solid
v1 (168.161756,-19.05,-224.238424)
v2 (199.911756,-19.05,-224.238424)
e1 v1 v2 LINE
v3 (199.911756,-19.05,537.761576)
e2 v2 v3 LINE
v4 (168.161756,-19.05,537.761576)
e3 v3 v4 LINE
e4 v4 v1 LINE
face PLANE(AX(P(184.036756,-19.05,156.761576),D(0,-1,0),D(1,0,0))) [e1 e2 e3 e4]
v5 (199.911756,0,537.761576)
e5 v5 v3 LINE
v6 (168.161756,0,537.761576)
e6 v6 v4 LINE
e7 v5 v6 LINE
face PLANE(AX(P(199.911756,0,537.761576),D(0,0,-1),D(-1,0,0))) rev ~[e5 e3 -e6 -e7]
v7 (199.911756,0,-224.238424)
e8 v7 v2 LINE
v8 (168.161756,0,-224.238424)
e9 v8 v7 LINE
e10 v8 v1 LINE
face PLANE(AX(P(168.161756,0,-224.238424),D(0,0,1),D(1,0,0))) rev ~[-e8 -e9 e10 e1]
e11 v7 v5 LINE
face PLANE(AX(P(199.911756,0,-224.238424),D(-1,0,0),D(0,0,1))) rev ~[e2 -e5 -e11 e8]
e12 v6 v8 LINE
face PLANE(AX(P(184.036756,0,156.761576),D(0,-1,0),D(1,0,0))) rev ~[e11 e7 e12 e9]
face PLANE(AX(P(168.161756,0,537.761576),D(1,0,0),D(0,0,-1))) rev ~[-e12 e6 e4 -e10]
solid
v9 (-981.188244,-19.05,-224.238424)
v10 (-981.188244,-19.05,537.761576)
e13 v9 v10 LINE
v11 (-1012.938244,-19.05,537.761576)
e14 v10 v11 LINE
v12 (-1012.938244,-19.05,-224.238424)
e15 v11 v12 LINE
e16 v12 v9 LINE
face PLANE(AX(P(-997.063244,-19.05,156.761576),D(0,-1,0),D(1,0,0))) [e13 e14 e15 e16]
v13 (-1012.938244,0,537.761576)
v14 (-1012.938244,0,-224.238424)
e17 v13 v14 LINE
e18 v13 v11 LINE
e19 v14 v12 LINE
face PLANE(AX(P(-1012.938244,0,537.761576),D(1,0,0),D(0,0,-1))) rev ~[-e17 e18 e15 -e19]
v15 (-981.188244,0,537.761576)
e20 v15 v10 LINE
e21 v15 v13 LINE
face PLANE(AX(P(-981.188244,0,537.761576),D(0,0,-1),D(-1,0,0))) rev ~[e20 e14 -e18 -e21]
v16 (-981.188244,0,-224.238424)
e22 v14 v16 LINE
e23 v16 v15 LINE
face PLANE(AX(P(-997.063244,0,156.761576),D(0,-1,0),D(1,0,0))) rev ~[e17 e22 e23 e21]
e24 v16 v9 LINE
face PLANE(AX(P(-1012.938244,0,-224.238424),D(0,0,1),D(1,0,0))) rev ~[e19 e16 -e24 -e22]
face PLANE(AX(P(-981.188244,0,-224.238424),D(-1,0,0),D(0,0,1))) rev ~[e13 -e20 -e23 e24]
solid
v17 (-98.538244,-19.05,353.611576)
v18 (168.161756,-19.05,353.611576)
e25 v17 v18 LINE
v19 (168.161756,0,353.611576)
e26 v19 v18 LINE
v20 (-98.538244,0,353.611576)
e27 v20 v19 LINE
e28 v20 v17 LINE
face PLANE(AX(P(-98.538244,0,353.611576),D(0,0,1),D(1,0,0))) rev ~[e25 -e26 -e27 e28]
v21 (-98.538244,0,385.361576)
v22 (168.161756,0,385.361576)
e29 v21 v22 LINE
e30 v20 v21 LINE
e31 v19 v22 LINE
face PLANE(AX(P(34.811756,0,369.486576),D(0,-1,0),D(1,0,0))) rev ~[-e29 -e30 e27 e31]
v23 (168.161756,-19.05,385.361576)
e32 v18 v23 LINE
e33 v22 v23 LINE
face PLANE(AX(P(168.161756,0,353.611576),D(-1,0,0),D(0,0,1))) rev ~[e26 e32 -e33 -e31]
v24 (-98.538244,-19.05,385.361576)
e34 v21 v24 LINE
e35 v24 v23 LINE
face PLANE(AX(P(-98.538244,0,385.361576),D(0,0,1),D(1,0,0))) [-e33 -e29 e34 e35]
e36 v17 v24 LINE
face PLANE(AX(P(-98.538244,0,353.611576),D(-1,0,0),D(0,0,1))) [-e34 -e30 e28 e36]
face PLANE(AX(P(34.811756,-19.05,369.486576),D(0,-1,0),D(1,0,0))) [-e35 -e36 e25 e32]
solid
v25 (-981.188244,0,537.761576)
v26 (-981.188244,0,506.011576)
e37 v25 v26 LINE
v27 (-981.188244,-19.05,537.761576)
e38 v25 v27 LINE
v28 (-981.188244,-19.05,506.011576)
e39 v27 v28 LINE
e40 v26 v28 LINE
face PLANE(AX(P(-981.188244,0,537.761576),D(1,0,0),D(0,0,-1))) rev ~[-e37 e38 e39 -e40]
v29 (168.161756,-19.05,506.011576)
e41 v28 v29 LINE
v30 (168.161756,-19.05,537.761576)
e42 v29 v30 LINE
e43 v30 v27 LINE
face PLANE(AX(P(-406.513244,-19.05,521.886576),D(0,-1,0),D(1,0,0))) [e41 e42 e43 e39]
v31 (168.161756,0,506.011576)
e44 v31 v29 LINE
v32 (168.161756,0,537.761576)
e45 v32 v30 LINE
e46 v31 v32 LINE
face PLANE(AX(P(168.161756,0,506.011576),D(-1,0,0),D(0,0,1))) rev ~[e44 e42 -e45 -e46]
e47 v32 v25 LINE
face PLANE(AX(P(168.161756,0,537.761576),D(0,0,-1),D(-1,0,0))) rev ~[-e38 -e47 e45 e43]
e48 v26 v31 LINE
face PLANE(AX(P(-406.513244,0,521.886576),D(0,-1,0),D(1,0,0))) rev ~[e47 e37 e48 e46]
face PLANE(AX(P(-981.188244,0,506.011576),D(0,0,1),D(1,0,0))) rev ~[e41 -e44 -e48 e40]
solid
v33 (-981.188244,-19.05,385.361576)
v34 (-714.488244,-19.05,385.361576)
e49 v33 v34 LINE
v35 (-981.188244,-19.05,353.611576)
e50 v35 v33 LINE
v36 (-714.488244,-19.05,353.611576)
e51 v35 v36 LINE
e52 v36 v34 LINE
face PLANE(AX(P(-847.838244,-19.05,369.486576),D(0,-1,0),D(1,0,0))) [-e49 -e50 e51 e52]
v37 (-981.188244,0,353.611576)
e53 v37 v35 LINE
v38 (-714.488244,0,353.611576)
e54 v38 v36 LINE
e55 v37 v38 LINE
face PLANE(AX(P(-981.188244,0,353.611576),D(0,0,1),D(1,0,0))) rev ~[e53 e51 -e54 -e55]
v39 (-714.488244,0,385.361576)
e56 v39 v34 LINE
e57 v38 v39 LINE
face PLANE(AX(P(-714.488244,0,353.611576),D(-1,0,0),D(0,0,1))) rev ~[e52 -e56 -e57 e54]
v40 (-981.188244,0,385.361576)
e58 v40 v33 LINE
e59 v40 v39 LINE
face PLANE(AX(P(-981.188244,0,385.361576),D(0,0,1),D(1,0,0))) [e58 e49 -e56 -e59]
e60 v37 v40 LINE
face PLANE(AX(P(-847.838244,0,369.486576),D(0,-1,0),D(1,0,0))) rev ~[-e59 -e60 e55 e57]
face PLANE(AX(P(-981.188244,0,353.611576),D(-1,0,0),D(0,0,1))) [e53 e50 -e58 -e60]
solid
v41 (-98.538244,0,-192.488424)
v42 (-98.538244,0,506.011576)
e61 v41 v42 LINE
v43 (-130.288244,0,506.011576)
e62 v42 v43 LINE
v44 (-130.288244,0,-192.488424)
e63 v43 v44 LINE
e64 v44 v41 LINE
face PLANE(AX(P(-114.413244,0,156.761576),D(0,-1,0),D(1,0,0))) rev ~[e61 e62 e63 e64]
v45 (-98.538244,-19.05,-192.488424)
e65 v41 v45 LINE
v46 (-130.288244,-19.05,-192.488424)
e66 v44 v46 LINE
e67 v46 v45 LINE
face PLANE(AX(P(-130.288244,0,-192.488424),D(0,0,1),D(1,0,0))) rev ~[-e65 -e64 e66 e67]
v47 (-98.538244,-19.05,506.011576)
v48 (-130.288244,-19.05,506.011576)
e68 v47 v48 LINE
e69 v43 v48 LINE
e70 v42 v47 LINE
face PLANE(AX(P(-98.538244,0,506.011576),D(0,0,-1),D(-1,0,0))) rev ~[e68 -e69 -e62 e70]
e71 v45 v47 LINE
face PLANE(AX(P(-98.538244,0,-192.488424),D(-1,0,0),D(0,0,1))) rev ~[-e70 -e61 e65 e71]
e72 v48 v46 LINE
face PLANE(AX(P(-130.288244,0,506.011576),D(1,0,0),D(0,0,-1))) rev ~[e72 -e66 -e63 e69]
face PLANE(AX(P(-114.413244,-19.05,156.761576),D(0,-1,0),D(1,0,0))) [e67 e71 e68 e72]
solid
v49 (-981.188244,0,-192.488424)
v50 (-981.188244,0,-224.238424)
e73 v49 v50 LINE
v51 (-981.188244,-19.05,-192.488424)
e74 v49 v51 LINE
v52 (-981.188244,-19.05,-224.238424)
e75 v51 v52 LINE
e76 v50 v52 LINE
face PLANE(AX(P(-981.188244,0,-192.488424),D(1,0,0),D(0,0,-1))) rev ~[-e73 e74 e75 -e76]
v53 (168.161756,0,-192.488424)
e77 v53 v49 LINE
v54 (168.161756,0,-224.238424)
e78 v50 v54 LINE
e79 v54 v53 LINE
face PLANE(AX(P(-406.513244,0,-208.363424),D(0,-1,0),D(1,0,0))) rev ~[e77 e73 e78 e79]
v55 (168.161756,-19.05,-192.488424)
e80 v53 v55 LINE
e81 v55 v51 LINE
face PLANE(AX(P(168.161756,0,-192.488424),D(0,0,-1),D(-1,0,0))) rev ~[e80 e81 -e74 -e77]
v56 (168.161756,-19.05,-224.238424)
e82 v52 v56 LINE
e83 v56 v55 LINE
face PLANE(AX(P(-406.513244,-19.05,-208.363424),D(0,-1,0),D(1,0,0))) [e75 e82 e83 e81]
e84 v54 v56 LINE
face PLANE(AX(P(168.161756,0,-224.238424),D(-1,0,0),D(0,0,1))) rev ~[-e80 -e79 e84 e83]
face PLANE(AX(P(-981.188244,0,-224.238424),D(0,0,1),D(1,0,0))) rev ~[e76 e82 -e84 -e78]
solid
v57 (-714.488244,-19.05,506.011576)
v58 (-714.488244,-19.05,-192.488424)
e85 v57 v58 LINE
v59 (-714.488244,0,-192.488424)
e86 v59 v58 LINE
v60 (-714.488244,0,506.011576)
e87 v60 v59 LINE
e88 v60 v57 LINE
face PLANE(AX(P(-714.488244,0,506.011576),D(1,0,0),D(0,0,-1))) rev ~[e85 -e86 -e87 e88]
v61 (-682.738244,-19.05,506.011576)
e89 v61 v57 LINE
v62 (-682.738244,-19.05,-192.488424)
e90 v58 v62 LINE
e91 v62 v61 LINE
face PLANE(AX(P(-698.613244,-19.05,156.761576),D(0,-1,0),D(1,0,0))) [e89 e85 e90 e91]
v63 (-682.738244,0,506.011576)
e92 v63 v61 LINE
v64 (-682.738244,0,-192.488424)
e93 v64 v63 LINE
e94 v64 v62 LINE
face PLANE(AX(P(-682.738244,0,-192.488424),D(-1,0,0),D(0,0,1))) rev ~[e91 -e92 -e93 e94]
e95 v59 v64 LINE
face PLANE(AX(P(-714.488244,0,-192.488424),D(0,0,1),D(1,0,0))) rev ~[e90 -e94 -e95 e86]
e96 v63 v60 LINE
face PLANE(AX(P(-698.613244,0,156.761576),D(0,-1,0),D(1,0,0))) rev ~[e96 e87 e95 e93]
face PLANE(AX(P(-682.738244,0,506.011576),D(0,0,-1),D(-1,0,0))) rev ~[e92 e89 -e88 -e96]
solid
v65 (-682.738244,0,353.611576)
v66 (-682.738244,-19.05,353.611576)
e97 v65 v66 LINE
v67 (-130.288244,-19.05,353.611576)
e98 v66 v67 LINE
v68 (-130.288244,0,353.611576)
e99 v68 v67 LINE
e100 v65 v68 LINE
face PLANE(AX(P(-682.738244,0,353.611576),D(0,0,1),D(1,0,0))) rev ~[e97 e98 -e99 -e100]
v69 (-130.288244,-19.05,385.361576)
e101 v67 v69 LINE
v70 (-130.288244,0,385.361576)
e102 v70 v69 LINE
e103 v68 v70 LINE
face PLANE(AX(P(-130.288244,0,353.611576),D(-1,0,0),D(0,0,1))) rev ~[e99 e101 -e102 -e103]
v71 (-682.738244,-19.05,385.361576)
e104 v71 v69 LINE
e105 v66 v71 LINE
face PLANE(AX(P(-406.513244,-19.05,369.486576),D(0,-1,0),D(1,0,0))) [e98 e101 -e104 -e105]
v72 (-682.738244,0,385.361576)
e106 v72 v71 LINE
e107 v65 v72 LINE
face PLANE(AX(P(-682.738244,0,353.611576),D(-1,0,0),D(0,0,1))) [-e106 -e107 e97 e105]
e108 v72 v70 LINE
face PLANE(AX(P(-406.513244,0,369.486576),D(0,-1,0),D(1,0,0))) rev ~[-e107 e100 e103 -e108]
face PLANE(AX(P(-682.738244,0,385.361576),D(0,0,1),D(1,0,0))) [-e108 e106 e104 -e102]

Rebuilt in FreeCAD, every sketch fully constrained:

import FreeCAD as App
import Part
import Sketcher
from FreeCAD import Vector
Q = App.Units.Quantity


def add_polygon(sketch, points):
    """Adds a closed chain of lines whose ends are joined by coincident constraints."""
    first, n = sketch.GeometryCount, len(points)
    for a, b in zip(points, points[1:] + points[:1]):
        sketch.addGeometry(Part.LineSegment(App.Vector(*a, 0), App.Vector(*b, 0)), False)
    for i in range(n):
        sketch.addConstraint(Sketcher.Constraint("Coincident", first + i, 2, first + (i + 1) % n, 1))

doc = App.newDocument("Part")
body = doc.addObject("PartDesign::Body", "Body")
body.AllowCompound = True

# Sketch on XZ plane
sketch1 = body.newObject("Sketcher::SketchObject", "Sketch")
sketch1.AttachmentSupport = (doc.getObject("XZ_Plane"), [""])
sketch1.MapMode = "FlatFace"
add_polygon(sketch1, [(-981, 538), (-1013, 538), (-1013, -224), (-981, -224)])  # lines 0-3
add_polygon(sketch1, [(-714, -192), (-683, -192), (-683, 506), (-714, 506)])  # lines 4-7
add_polygon(sketch1, [(-130, -192), (-99, -192), (-99, 506), (-130, 506)])  # lines 8-11
add_polygon(sketch1, [(168, -224), (200, -224), (200, 538), (168, 538)])  # lines 12-15
sketch1.addConstraint([
    Sketcher.Constraint("Horizontal", 0),
    Sketcher.Constraint("Vertical", 1),
    Sketcher.Constraint("Horizontal", 2),
    Sketcher.Constraint("Vertical", 3),
    Sketcher.Constraint("Horizontal", 4),
    Sketcher.Constraint("Vertical", 5),
    Sketcher.Constraint("Horizontal", 6),
    Sketcher.Constraint("Vertical", 7),
    Sketcher.Constraint("Horizontal", 8),
    Sketcher.Constraint("Vertical", 9),
    Sketcher.Constraint("Horizontal", 10),
    Sketcher.Constraint("Vertical", 11),
    Sketcher.Constraint("Horizontal", 12),
    Sketcher.Constraint("Vertical", 13),
    Sketcher.Constraint("Horizontal", 14),
    Sketcher.Constraint("Vertical", 15),
    Sketcher.Constraint("Horizontal", 7, 2, 8, 2),
    Sketcher.Constraint("Horizontal", 6, 2, 9, 2),
    Sketcher.Constraint("Horizontal", 2, 2, 12, 2),
    Sketcher.Constraint("Horizontal", 3, 2, 13, 2),
    Sketcher.Constraint("Equal", 2, 4),
    Sketcher.Constraint("Equal", 6, 8),
    Sketcher.Constraint("Equal", 10, 12),
    Sketcher.Constraint("DistanceY", 1, 2, 1, 1, Q("30 in")),
    Sketcher.Constraint("DistanceY", 5, 1, 5, 2, Q("27.5 in")),
    Sketcher.Constraint("DistanceX", 1, 2, 4, 2, Q("13 in")),
    Sketcher.Constraint("DistanceX", 4, 2, 8, 2, Q("23 in")),
    Sketcher.Constraint("DistanceX", 11, 2, 12, 2, Q("13 in")),
    Sketcher.Constraint("DistanceX", 0, 2, 0, 1, Q("1.25 in")),
    Sketcher.Constraint("DistanceY", 2, 2, 4, 2, Q("1.25 in")),
    Sketcher.Constraint("DistanceX", 0, 2, -1, 1, 1012.938244),
    Sketcher.Constraint("DistanceY", -1, 1, 0, 2, 537.761576),
])
pad1 = body.newObject("PartDesign::Pad", "Pad")
pad1.Profile = sketch1
pad1.Length = Q("0.75 in")
body2 = doc.addObject("PartDesign::Body", "Body001")
body2.AllowCompound = True

# Sketch on XZ plane
sketch2 = body2.newObject("Sketcher::SketchObject", "Sketch001")
sketch2.AttachmentSupport = (doc.getObject("XZ_Plane001"), [""])
sketch2.MapMode = "FlatFace"
add_polygon(sketch2, [(168, 506), (168, 538), (-981, 538), (-981, 506)])  # lines 0-3
add_polygon(sketch2, [(-981, 385), (-981, 354), (-714, 354), (-714, 385)])  # lines 4-7
add_polygon(sketch2, [(-683, 385), (-683, 354), (-130, 354), (-130, 385)])  # lines 8-11
add_polygon(sketch2, [(-99, 385), (-99, 354), (168, 354), (168, 385)])  # lines 12-15
add_polygon(sketch2, [(168, -224), (168, -192), (-981, -192), (-981, -224)])  # lines 16-19
sketch2.addConstraint([
    Sketcher.Constraint("Vertical", 0),
    Sketcher.Constraint("Horizontal", 1),
    Sketcher.Constraint("Vertical", 2),
    Sketcher.Constraint("Horizontal", 3),
    Sketcher.Constraint("Vertical", 4),
    Sketcher.Constraint("Horizontal", 5),
    Sketcher.Constraint("Vertical", 6),
    Sketcher.Constraint("Horizontal", 7),
    Sketcher.Constraint("Vertical", 8),
    Sketcher.Constraint("Horizontal", 9),
    Sketcher.Constraint("Vertical", 10),
    Sketcher.Constraint("Horizontal", 11),
    Sketcher.Constraint("Vertical", 12),
    Sketcher.Constraint("Horizontal", 13),
    Sketcher.Constraint("Vertical", 14),
    Sketcher.Constraint("Horizontal", 15),
    Sketcher.Constraint("Vertical", 16),
    Sketcher.Constraint("Horizontal", 17),
    Sketcher.Constraint("Vertical", 18),
    Sketcher.Constraint("Horizontal", 19),
    Sketcher.Constraint("Horizontal", 5, 2, 8, 2),
    Sketcher.Constraint("Horizontal", 7, 2, 10, 2),
    Sketcher.Constraint("Horizontal", 9, 2, 12, 2),
    Sketcher.Constraint("Horizontal", 11, 2, 14, 2),
    Sketcher.Constraint("Vertical", 2, 2, 4, 2),
    Sketcher.Constraint("Vertical", 3, 2, 13, 2),
    Sketcher.Constraint("Vertical", 14, 2, 16, 2),
    Sketcher.Constraint("Vertical", 7, 2, 17, 2),
    Sketcher.Constraint("Equal", 7, 13),
    Sketcher.Constraint("Equal", 2, 4),
    Sketcher.Constraint("Equal", 14, 16),
    Sketcher.Constraint("DistanceX", 5, 1, 5, 2, Q("10.5 in")),
    Sketcher.Constraint("DistanceY", 4, 2, 2, 2, Q("6 in")),
    Sketcher.Constraint("DistanceX", 5, 2, 9, 2, Q("23 in")),
    Sketcher.Constraint("DistanceX", 8, 2, 12, 2, Q("23 in")),
    Sketcher.Constraint("DistanceY", 18, 2, 7, 2, Q("24 in")),
    Sketcher.Constraint("DistanceX", 1, 2, 1, 1, Q("45.25 in")),
    Sketcher.Constraint("DistanceY", 0, 1, 0, 2, Q("1.25 in")),
    Sketcher.Constraint("DistanceX", -1, 1, 0, 2, 168.161756),
    Sketcher.Constraint("DistanceY", -1, 1, 0, 2, 537.761576),
])
pad2 = body2.newObject("PartDesign::Pad", "Pad001")
pad2.Profile = sketch2
pad2.Length = Q("0.75 in")

doc.recompute()
